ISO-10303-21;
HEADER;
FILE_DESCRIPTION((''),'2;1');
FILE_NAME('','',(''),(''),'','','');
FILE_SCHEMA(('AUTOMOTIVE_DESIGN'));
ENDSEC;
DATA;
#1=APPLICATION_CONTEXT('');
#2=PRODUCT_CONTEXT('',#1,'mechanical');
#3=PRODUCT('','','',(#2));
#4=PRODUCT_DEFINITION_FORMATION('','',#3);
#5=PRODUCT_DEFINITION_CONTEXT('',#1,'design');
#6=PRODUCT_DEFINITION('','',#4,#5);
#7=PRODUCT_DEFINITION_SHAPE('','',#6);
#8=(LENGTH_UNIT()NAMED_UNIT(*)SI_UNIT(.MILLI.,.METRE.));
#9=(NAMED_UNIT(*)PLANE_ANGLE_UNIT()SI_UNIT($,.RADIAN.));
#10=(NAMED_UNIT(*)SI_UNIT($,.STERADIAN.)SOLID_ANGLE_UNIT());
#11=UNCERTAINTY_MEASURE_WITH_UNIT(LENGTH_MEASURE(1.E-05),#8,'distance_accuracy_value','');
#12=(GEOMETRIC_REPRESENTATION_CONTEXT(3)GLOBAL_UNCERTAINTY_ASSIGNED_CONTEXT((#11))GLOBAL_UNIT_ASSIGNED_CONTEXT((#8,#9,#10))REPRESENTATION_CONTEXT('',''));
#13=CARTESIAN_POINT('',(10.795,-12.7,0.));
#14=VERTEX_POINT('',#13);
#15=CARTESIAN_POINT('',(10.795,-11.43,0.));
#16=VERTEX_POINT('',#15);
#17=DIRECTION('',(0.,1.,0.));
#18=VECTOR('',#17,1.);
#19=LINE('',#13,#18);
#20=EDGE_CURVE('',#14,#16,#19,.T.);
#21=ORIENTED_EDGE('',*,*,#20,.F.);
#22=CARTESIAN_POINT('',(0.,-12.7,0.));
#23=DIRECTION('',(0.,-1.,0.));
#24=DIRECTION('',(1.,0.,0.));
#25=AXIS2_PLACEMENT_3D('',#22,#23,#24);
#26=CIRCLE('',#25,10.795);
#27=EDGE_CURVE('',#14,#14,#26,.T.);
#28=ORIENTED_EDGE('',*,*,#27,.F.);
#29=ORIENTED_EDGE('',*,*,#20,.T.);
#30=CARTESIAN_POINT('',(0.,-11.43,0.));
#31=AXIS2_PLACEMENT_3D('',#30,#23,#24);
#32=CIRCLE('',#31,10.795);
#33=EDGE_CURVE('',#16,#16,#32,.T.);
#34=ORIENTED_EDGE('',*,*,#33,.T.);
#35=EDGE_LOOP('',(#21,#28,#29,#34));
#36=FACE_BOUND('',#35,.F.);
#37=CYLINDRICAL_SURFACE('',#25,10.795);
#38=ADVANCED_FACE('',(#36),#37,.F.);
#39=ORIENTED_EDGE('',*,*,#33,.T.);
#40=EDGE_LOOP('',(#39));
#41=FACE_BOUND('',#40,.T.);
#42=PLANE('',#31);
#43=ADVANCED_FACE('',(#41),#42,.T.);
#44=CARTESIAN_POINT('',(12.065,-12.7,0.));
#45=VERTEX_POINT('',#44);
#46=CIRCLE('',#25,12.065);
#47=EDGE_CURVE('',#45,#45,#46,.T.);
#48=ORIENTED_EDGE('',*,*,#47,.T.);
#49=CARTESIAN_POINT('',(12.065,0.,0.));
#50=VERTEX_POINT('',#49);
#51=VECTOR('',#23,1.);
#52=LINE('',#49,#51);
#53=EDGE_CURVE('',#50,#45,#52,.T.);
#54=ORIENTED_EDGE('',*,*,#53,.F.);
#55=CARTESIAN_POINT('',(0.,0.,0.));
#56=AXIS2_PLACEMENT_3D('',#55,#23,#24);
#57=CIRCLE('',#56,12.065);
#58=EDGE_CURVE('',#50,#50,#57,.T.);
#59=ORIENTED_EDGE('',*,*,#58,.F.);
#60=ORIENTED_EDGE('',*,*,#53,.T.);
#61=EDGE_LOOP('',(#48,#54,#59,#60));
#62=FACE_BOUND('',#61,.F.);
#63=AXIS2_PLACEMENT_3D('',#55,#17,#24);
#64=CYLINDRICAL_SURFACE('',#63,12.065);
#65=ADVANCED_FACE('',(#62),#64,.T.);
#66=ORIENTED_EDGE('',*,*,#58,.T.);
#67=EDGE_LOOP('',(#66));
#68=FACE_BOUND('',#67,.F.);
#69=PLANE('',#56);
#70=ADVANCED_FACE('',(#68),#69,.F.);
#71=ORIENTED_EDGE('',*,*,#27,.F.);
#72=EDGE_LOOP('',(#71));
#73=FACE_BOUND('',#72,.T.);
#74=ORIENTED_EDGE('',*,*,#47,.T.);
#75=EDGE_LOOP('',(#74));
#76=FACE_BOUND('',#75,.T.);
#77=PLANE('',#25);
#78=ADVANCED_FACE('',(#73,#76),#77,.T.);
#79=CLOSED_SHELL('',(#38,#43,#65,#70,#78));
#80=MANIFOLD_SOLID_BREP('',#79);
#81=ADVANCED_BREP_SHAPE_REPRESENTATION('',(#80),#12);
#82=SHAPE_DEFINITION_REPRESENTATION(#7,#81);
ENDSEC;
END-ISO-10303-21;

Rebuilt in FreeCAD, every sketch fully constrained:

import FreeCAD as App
import Part
import Sketcher
from FreeCAD import Vector
Q = App.Units.Quantity

doc = App.newDocument("Part")
body = doc.addObject("PartDesign::Body", "Body")

# Sketch on XZ plane
sketch1 = doc.addObject("Sketcher::SketchObject", "Sketch")
body.addObject(sketch1)
sketch1.AttachmentSupport = (doc.XZ_Plane, [""])
sketch1.MapMode = "FlatFace"
sketch1.addGeometry(Part.Circle(Vector(0, 0, 0), Vector(0, 0, 1), 12), False)
sketch1.addConstraint([
    Sketcher.Constraint("Coincident", 0, 3, -1, 1),
    Sketcher.Constraint("Diameter", 0, Q("0.95 in")),
])
pad1 = doc.addObject("PartDesign::Pad", "Pad")
body.addObject(pad1)
pad1.Profile = sketch1
pad1.Length = Q("0.5 in")

# Sketch on XZ plane
sketch2 = doc.addObject("Sketcher::SketchObject", "Sketch001")
body.addObject(sketch2)
sketch2.AttachmentSupport = (doc.XZ_Plane, [""])
sketch2.MapMode = "FlatFace"
sketch2.AttachmentOffset = App.Placement(Vector(0, 0, 0.5 * 25.4), App.Rotation())
sketch2.addGeometry(Part.Circle(Vector(0, 0, 0), Vector(0, 0, 1), 11), False)
sketch2.addConstraint([
    Sketcher.Constraint("Coincident", 0, 3, -1, 1),
    Sketcher.Constraint("Diameter", 0, Q("0.85 in")),
])
pocket1 = doc.addObject("PartDesign::Pocket", "Pocket")
body.addObject(pocket1)
pocket1.Profile = sketch2
pocket1.Length = Q("0.05 in")

doc.recompute()
